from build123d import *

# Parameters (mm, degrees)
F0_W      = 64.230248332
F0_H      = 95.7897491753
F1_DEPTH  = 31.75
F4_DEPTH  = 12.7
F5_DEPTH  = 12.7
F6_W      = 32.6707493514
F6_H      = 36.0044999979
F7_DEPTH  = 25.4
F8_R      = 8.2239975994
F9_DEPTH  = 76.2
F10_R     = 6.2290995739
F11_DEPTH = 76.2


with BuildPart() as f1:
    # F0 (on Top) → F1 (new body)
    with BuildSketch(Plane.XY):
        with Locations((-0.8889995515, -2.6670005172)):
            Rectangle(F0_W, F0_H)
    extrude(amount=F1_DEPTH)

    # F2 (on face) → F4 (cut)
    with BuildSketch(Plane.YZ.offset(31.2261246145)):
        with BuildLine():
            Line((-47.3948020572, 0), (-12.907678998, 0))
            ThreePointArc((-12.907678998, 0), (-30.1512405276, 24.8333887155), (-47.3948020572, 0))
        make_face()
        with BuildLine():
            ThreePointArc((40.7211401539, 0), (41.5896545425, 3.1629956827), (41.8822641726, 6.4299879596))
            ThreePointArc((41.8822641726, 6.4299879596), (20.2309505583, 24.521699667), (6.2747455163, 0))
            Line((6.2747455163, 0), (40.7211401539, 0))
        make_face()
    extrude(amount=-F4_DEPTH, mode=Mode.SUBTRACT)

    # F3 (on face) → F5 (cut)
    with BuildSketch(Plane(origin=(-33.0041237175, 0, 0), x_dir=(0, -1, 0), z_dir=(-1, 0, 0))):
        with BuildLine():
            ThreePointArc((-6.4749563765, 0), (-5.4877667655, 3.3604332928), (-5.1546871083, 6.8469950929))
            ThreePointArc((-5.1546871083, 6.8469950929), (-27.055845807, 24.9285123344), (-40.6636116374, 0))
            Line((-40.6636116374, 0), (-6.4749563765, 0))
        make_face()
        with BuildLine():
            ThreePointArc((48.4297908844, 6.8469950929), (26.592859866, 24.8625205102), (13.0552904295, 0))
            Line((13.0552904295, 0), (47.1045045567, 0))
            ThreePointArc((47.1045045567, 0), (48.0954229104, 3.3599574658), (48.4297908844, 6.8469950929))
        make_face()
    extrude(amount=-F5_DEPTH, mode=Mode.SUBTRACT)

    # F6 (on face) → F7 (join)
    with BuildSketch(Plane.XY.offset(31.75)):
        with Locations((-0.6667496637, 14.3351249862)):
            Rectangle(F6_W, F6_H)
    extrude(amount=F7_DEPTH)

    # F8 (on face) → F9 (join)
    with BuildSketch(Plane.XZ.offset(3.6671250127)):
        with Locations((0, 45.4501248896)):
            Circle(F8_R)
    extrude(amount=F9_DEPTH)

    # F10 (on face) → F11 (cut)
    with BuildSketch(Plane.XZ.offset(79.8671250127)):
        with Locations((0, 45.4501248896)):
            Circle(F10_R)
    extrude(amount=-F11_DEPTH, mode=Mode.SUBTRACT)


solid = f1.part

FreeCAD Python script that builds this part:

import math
import FreeCAD as App
import Part
import Sketcher

V = App.Vector
Q = App.Units.Quantity


def add_polygon(sketch, points):
    """Adds a closed chain of lines whose ends are joined by coincident constraints."""
    first, n = sketch.GeometryCount, len(points)
    for a, b in zip(points, points[1:] + points[:1]):
        sketch.addGeometry(Part.LineSegment(App.Vector(*a, 0), App.Vector(*b, 0)), False)
    for i in range(n):
        sketch.addConstraint(Sketcher.Constraint("Coincident", first + i, 2, first + (i + 1) % n, 1))

doc = App.newDocument("Part")
body = doc.addObject("PartDesign::Body", "Body")

# Sketch on XY plane
sketch1 = doc.addObject("Sketcher::SketchObject", "Sketch")
body.addObject(sketch1)
sketch1.AttachmentSupport = (doc.XY_Plane, [""])
sketch1.MapMode = "FlatFace"
add_polygon(sketch1, [(-33.004124, 45.227874), (-33.004124, -50.561875), (31.226125, -50.561875), (31.226125, 45.227874)])  # lines 0-3
sketch1.addConstraint(Sketcher.Constraint("Vertical", 0))
sketch1.addConstraint(Sketcher.Constraint("Horizontal", 1))
sketch1.addConstraint(Sketcher.Constraint("Vertical", 2))
sketch1.addConstraint(Sketcher.Constraint("Horizontal", 3))
sketch1.addConstraint(Sketcher.Constraint("DistanceX", 1, 1, 1, 2, Q("64.230248 mm")))
sketch1.addConstraint(Sketcher.Constraint("DistanceY", 0, 2, 0, 1, Q("95.789749 mm")))
sketch1.addConstraint(Sketcher.Constraint("DistanceX", 0, 2, -1, 1, Q("33.004124 mm")))
sketch1.addConstraint(Sketcher.Constraint("DistanceY", 0, 2, -1, 1, Q("50.561875 mm")))
pad1 = doc.addObject("PartDesign::Pad", "Pad")
body.addObject(pad1)
pad1.Profile = sketch1
pad1.Length = Q("1.25 in")

# Sketch on YZ plane
sketch2 = doc.addObject("Sketcher::SketchObject", "Sketch001")
body.addObject(sketch2)
sketch2.AttachmentSupport = (doc.YZ_Plane, [""])
sketch2.MapMode = "FlatFace"
sketch2.AttachmentOffset = App.Placement(V(0, 0, 31.226125), App.Rotation())
sketch2.addGeometry(Part.LineSegment(V(-47.394802, 0, 0), V(-12.907679, 0, 0)), False)
sketch2.addGeometry(Part.ArcOfCircle(Part.Circle(V(-30.151241, 6.429988, 0), V(0, 0, 1), 18.403401), math.radians(-20.450088), math.radians(200.450088)), False)
sketch2.addGeometry(Part.ArcOfCircle(Part.Circle(V(23.497943, 6.429988, 0), V(0, 0, 1), 18.384321), math.radians(-20.472263), math.radians(0)), False)
sketch2.addGeometry(Part.ArcOfCircle(Part.Circle(V(23.497943, 6.429988, 0), V(0, 0, 1), 18.384321), math.radians(0), math.radians(200.472263)), False)
sketch2.addGeometry(Part.LineSegment(V(6.274746, 0, 0), V(40.72114, 0, 0)), False)
sketch2.addConstraint(Sketcher.Constraint("Coincident", 0, 1, 1, 2))
sketch2.addConstraint(Sketcher.Constraint("Coincident", 1, 1, 0, 2))
sketch2.addConstraint(Sketcher.Constraint("Tangent", 2, 2, 3, 1))
sketch2.addConstraint(Sketcher.Constraint("Coincident", 3, 2, 4, 1))
sketch2.addConstraint(Sketcher.Constraint("Coincident", 4, 2, 2, 1))
sketch2.addConstraint(Sketcher.Constraint("Horizontal", 0))
sketch2.addConstraint(Sketcher.Constraint("Horizontal", 4))
sketch2.addConstraint(Sketcher.Constraint("Equal", 2, 3))
sketch2.addConstraint(Sketcher.Constraint("PointOnObject", 0, 1, -1))
sketch2.addConstraint(Sketcher.Constraint("PointOnObject", 3, 2, -1))
sketch2.addConstraint(Sketcher.Constraint("Horizontal", 1, 3, 2, 3))
sketch2.addConstraint(Sketcher.Constraint("Horizontal", 3, 3, 2, 2))
sketch2.addConstraint(Sketcher.Constraint("Radius", 1, Q("18.403401 mm")))
sketch2.addConstraint(Sketcher.Constraint("Radius", 2, Q("18.384321 mm")))
sketch2.addConstraint(Sketcher.Constraint("DistanceX", 0, 1, 0, 2, Q("34.487123 mm")))
sketch2.addConstraint(Sketcher.Constraint("DistanceX", 1, 3, -1, 1, Q("30.151241 mm")))
sketch2.addConstraint(Sketcher.Constraint("DistanceX", -1, 1, 4, 2, Q("40.72114 mm")))
pocket1 = doc.addObject("PartDesign::Pocket", "Pocket")
body.addObject(pocket1)
pocket1.Profile = sketch2
pocket1.Length = Q("0.5 in")

# Sketch on YZ plane
sketch3 = doc.addObject("Sketcher::SketchObject", "Sketch002")
body.addObject(sketch3)
sketch3.AttachmentSupport = (doc.YZ_Plane, [""])
sketch3.MapMode = "FlatFace"
sketch3.AttachmentOffset = App.Placement(V(0, 0, -33.004124), App.Rotation())
sketch3.addGeometry(Part.ArcOfCircle(Part.Circle(V(23.569284, 6.846995, 0), V(0, 0, 1), 18.414597), math.radians(180), math.radians(201.828172)), False)
sketch3.addGeometry(Part.ArcOfCircle(Part.Circle(V(23.569284, 6.846995, 0), V(0, 0, 1), 18.414597), math.radians(-21.828172), math.radians(180)), False)
sketch3.addGeometry(Part.LineSegment(V(40.663612, 0, 0), V(6.474956, 0, 0)), False)
sketch3.addGeometry(Part.ArcOfCircle(Part.Circle(V(-30.079897, 6.846995, 0), V(0, 0, 1), 18.349893), math.radians(-21.909117), math.radians(180)), False)
sketch3.addGeometry(Part.LineSegment(V(-13.05529, 0, 0), V(-47.104505, 0, 0)), False)
sketch3.addGeometry(Part.ArcOfCircle(Part.Circle(V(-30.079897, 6.846995, 0), V(0, 0, 1), 18.349893), math.radians(180), math.radians(201.909117)), False)
sketch3.addConstraint(Sketcher.Constraint("Tangent", 0, 1, 1, 2))
sketch3.addConstraint(Sketcher.Constraint("Coincident", 1, 1, 2, 1))
sketch3.addConstraint(Sketcher.Constraint("Coincident", 2, 2, 0, 2))
sketch3.addConstraint(Sketcher.Constraint("Coincident", 3, 1, 4, 1))
sketch3.addConstraint(Sketcher.Constraint("Coincident", 4, 2, 5, 2))
sketch3.addConstraint(Sketcher.Constraint("Tangent", 5, 1, 3, 2))
sketch3.addConstraint(Sketcher.Constraint("Horizontal", 2))
sketch3.addConstraint(Sketcher.Constraint("Horizontal", 4))
sketch3.addConstraint(Sketcher.Constraint("Equal", 0, 1))
sketch3.addConstraint(Sketcher.Constraint("Equal", 3, 5))
sketch3.addConstraint(Sketcher.Constraint("PointOnObject", 1, 1, -1))
sketch3.addConstraint(Sketcher.Constraint("PointOnObject", 3, 1, -1))
sketch3.addConstraint(Sketcher.Constraint("Horizontal", 1, 3, 3, 3))
sketch3.addConstraint(Sketcher.Constraint("Horizontal", 5, 3, 0, 1))
sketch3.addConstraint(Sketcher.Constraint("Horizontal", 0, 1, 5, 1))
sketch3.addConstraint(Sketcher.Constraint("Radius", 0, Q("18.414597 mm")))
sketch3.addConstraint(Sketcher.Constraint("Radius", 3, Q("18.349893 mm")))
sketch3.addConstraint(Sketcher.Constraint("DistanceX", 5, 1, 3, 1, Q("35.3745 mm")))
sketch3.addConstraint(Sketcher.Constraint("DistanceX", -1, 1, 1, 1, Q("40.663612 mm")))
sketch3.addConstraint(Sketcher.Constraint("DistanceX", 3, 1, -1, 1, Q("13.05529 mm")))
pocket2 = doc.addObject("PartDesign::Pocket", "Pocket001")
body.addObject(pocket2)
pocket2.Profile = sketch3
pocket2.Length = Q("0.5 in")
pocket2.Reversed = True

# Sketch on XY plane
sketch4 = doc.addObject("Sketcher::SketchObject", "Sketch003")
body.addObject(sketch4)
sketch4.AttachmentSupport = (doc.XY_Plane, [""])
sketch4.MapMode = "FlatFace"
sketch4.AttachmentOffset = App.Placement(V(0, 0, 1.25 * 25.4), App.Rotation())
add_polygon(sketch4, [(-17.002124, 32.337375), (-17.002124, -3.667125), (15.668625, -3.667125), (15.668625, 32.337375)])  # lines 0-3
sketch4.addConstraint(Sketcher.Constraint("Vertical", 0))
sketch4.addConstraint(Sketcher.Constraint("Horizontal", 1))
sketch4.addConstraint(Sketcher.Constraint("Vertical", 2))
sketch4.addConstraint(Sketcher.Constraint("Horizontal", 3))
sketch4.addConstraint(Sketcher.Constraint("DistanceY", 0, 2, 0, 1, Q("1.4175 in")))
sketch4.addConstraint(Sketcher.Constraint("DistanceX", 1, 1, 1, 2, Q("32.670749 mm")))
sketch4.addConstraint(Sketcher.Constraint("DistanceX", 0, 2, -1, 1, Q("17.002124 mm")))
sketch4.addConstraint(Sketcher.Constraint("DistanceY", 0, 2, -1, 1, Q("3.667125 mm")))
pad2 = doc.addObject("PartDesign::Pad", "Pad001")
body.addObject(pad2)
pad2.Profile = sketch4
pad2.Length = Q("1 in")

# Sketch on XZ plane
sketch5 = doc.addObject("Sketcher::SketchObject", "Sketch004")
body.addObject(sketch5)
sketch5.AttachmentSupport = (doc.XZ_Plane, [""])
sketch5.MapMode = "FlatFace"
sketch5.AttachmentOffset = App.Placement(V(0, 0, 3.667125), App.Rotation())
sketch5.addGeometry(Part.Circle(V(0, 45.450125, 0), V(0, 0, 1), 8.223998), False)
sketch5.addConstraint(Sketcher.Constraint("PointOnObject", 0, 3, -2))
sketch5.addConstraint(Sketcher.Constraint("Diameter", 0, Q("16.447995 mm")))
sketch5.addConstraint(Sketcher.Constraint("DistanceY", -1, 1, 0, 3, Q("45.450125 mm")))
pad3 = doc.addObject("PartDesign::Pad", "Pad002")
body.addObject(pad3)
pad3.Profile = sketch5
pad3.Length = Q("3 in")

# Sketch on XZ plane
sketch6 = doc.addObject("Sketcher::SketchObject", "Sketch005")
body.addObject(sketch6)
sketch6.AttachmentSupport = (doc.XZ_Plane, [""])
sketch6.MapMode = "FlatFace"
sketch6.AttachmentOffset = App.Placement(V(0, 0, 79.867125), App.Rotation())
sketch6.addGeometry(Part.Circle(V(0, 45.450125, 0), V(0, 0, 1), 6.2291), False)
sketch6.addConstraint(Sketcher.Constraint("PointOnObject", 0, 3, -2))
sketch6.addConstraint(Sketcher.Constraint("Diameter", 0, Q("12.458199 mm")))
sketch6.addConstraint(Sketcher.Constraint("DistanceY", -1, 1, 0, 3, Q("45.450125 mm")))
pocket3 = doc.addObject("PartDesign::Pocket", "Pocket002")
body.addObject(pocket3)
pocket3.Profile = sketch6
pocket3.Length = Q("3 in")

doc.recompute()
